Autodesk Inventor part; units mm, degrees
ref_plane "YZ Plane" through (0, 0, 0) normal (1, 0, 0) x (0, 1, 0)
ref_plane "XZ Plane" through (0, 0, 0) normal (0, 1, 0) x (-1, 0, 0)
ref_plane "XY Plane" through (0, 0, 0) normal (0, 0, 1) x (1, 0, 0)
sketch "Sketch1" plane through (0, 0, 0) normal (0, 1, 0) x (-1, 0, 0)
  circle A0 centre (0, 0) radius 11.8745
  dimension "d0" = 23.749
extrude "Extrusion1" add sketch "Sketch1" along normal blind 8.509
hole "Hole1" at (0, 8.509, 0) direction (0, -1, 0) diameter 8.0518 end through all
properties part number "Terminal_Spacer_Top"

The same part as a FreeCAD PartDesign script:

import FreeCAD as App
import Part
import Sketcher

V = App.Vector
Q = App.Units.Quantity

doc = App.newDocument("Part")
params = doc.addObject("Spreadsheet::Sheet", "Params")
for row, (alias, value) in enumerate([
    ("sketch1_diameter", "0.935 in"),
    ("pad1_length", "0.335 in"),
    ("sketch2_diameter", "0.317 in"),
    ("hole_diameter", "0.317 in"),
], start=1):
    params.set(f"A{row}", alias)
    params.set(f"B{row}", "=" + value)
    params.setAlias(f"B{row}", alias)

body = doc.addObject("PartDesign::Body", "Body")

# Sketch on XZ plane
sketch1 = body.newObject("Sketcher::SketchObject", "Sketch")
sketch1.AttachmentSupport = (doc.getObject("XZ_Plane"), [""])
sketch1.MapMode = "FlatFace"
sketch1.addGeometry(Part.Circle(V(0, 0, 0), V(0, 0, 1), 12), False)
sketch1.addConstraint([
    Sketcher.Constraint("Coincident", 0, 3, -1, 1),
    Sketcher.Constraint("Diameter", 0, Q("0.935 in")),
])
sketch1.setExpression("Constraints[1]", "Params.sketch1_diameter")
pad1 = body.newObject("PartDesign::Pad", "Pad")
pad1.Profile = sketch1
pad1.setExpression("Length", "Params.pad1_length")
pad1.Reversed = True

# Sketch on XZ plane
sketch2 = body.newObject("Sketcher::SketchObject", "Sketch001")
sketch2.AttachmentSupport = (doc.getObject("XZ_Plane"), [""])
sketch2.MapMode = "FlatFace"
sketch2.AttachmentOffset = App.Placement(V(0, 0, -0.335 * 25.4), App.Rotation())
sketch2.addGeometry(Part.Circle(V(0, 0, 0), V(0, 0, 1), 4), False)
sketch2.addConstraint([
    Sketcher.Constraint("Coincident", 0, 3, -1, 1),
    Sketcher.Constraint("Diameter", 0, Q("0.317 in")),
])
sketch2.setExpression("Constraints[1]", "Params.sketch2_diameter")
doc.recompute()
hole = body.newObject("PartDesign::Hole", "Hole")
hole.Profile = sketch2
hole.ThreadType = "None"
hole.setExpression("Diameter", "Params.hole_diameter")
hole.DepthType = "ThroughAll"
hole.Reversed = True

doc.recompute()
